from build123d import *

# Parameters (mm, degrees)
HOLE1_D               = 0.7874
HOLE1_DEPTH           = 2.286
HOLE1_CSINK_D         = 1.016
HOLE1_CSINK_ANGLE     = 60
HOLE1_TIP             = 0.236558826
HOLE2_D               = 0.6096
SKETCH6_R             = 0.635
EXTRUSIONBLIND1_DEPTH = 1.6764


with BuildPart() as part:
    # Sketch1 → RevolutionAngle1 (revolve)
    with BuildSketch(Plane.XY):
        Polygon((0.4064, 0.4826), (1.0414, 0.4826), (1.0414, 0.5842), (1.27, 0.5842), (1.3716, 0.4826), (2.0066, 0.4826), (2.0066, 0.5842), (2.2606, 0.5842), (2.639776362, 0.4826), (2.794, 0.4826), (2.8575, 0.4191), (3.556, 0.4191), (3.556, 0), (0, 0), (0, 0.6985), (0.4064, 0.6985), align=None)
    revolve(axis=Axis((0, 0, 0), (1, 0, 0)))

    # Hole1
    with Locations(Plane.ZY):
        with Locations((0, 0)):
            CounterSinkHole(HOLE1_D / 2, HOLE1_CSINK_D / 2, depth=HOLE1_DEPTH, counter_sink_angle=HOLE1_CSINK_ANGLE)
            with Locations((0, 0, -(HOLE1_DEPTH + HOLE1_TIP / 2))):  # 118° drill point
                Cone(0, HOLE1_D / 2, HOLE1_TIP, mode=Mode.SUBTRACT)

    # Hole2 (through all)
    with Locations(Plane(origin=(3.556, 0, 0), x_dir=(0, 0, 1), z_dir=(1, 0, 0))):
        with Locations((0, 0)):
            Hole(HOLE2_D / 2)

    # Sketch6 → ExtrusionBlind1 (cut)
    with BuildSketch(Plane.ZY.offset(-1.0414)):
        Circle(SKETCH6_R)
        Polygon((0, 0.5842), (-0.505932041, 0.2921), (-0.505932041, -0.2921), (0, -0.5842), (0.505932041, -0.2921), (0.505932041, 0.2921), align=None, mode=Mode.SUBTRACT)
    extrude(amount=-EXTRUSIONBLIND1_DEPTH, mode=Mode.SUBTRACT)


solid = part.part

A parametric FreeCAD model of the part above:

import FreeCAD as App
import Part
import Sketcher
from FreeCAD import Vector
Q = App.Units.Quantity


def add_polygon(sketch, points):
    """Adds a closed chain of lines whose ends are joined by coincident constraints."""
    first, n = sketch.GeometryCount, len(points)
    for a, b in zip(points, points[1:] + points[:1]):
        sketch.addGeometry(Part.LineSegment(App.Vector(*a, 0), App.Vector(*b, 0)), False)
    for i in range(n):
        sketch.addConstraint(Sketcher.Constraint("Coincident", first + i, 2, first + (i + 1) % n, 1))

doc = App.newDocument("Part")
params = doc.addObject("Spreadsheet::Sheet", "Params")
for row, (alias, value) in enumerate([
    ("sketch1_width", "0.14 in"),
    ("sketch1_width2", "0.01 in"),
    ("sketch1_width3", "0.025 in"),
    ("sketch1_width4", "0.016 in"),
    ("sketch1_width5", "0.009 in"),
    ("revolution_angle", "360 deg"),
    ("sketch2_diameter", "0.031 in"),
    ("hole_diameter", "0.031 in"),
    ("hole_depth", "0.09 in"),
    ("hole_csink_diameter", "0.04 in"),
    ("sketch3_diameter", "0.024 in"),
    ("hole2_diameter", "0.024 in"),
    ("sketch4_diameter", "0.05 in"),
    ("sketch4_width", "0.023 in"),
    ("sketch4_length", "0.023 in"),
    ("pocket1_length", "0.066 in"),
], start=1):
    params.set(f"A{row}", alias)
    params.set(f"B{row}", "=" + value)
    params.setAlias(f"B{row}", alias)

body = doc.addObject("PartDesign::Body", "Body")

sketch1 = doc.addObject("Sketcher::SketchObject", "Sketch")
body.addObject(sketch1)
sketch1.AttachmentSupport = (doc.XY_Plane, [""])
sketch1.MapMode = "FlatFace"
add_polygon(sketch1, [(1.04, 0.48), (0.41, 0.48), (0.41, 0.7), (0, 0.7), (0, 0), (3.56, 0), (3.56, 0.42), (2.86, 0.42), (2.79, 0.48), (2.64, 0.48), (2.26, 0.58), (2.01, 0.58), (2.01, 0.48), (1.37, 0.48), (1.27, 0.58), (1.04, 0.58)])
sketch1.addConstraint([
    Sketcher.Constraint("Horizontal", 0),
    Sketcher.Constraint("Vertical", 1),
    Sketcher.Constraint("Horizontal", 2),
    Sketcher.Constraint("Vertical", 3),
    Sketcher.Constraint("Horizontal", 4),
    Sketcher.Constraint("Vertical", 5),
    Sketcher.Constraint("Horizontal", 6),
    Sketcher.Constraint("Horizontal", 8),
    Sketcher.Constraint("Horizontal", 10),
    Sketcher.Constraint("Vertical", 11),
    Sketcher.Constraint("Horizontal", 12),
    Sketcher.Constraint("Horizontal", 14),
    Sketcher.Constraint("Vertical", 15),
    Sketcher.Constraint("Coincident", 3, 2, -1, 1),
    Sketcher.Constraint("Parallel", 7, 13),
    Sketcher.Constraint("Horizontal", 0, 2, 7, 2),
    Sketcher.Constraint("Horizontal", 8, 2, 11, 2),
    Sketcher.Constraint("Horizontal", 10, 2, 13, 2),
    Sketcher.Constraint("Equal", 0, 12),
    Sketcher.Constraint("Equal", 6, 3),
    Sketcher.Constraint("Angle", 7, Q("135 deg")),
    Sketcher.Constraint("Angle", 9, Q("165 deg")),
    Sketcher.Constraint("DistanceX", 4, 1, 4, 2, Q("0.14 in")),
    Sketcher.Constraint("DistanceX", 10, 2, 10, 1, Q("0.01 in")),
    Sketcher.Constraint("DistanceX", 0, 2, 0, 1, Q("0.025 in")),
    Sketcher.Constraint("DistanceX", 2, 2, 2, 1, Q("0.016 in")),
    Sketcher.Constraint("DistanceX", 14, 2, 14, 1, Q("0.009 in")),
    Sketcher.Constraint("DistanceY", 11, 2, 11, 1, Q("0.004 in")),
    Sketcher.Constraint("DistanceX", -1, 1, 7, 2, Q("0.11 in")),
    Sketcher.Constraint("DistanceX", 6, 2, 6, 1, Q("0.0275 in")),
    Sketcher.Constraint("DistanceY", 1, 1, 1, 2, Q("0.0085 in")),
])
sketch1.setExpression("Constraints[38]", "Params.sketch1_width")
sketch1.setExpression("Constraints[39]", "Params.sketch1_width2")
sketch1.setExpression("Constraints[40]", "Params.sketch1_width3")
sketch1.setExpression("Constraints[41]", "Params.sketch1_width4")
sketch1.setExpression("Constraints[42]", "Params.sketch1_width5")
revolution = doc.addObject("PartDesign::Revolution", "Revolution")
body.addObject(revolution)
revolution.Profile = sketch1
revolution.ReferenceAxis = (sketch1, ["H_Axis"])
revolution.setExpression("Angle", "Params.revolution_angle")

sketch2 = doc.addObject("Sketcher::SketchObject", "Sketch001")
body.addObject(sketch2)
sketch2.AttachmentSupport = (doc.YZ_Plane, [""])
sketch2.MapMode = "FlatFace"
sketch2.addGeometry(Part.Circle(Vector(0, 0, 0), Vector(0, 0, 1), 0.39), False)
sketch2.addConstraint([
    Sketcher.Constraint("Coincident", 0, 3, -1, 1),
    Sketcher.Constraint("Diameter", 0, Q("0.031 in")),
])
sketch2.setExpression("Constraints[1]", "Params.sketch2_diameter")
doc.recompute()
hole = doc.addObject("PartDesign::Hole", "Hole")
body.addObject(hole)
hole.Profile = sketch2
hole.ThreadType = "None"
hole.setExpression("Diameter", "Params.hole_diameter")
hole.DepthType = "Dimension"
hole.setExpression("Depth", "Params.hole_depth")
hole.DrillPoint = "Angled"
hole.DrillPointAngle = 118
hole.HoleCutType = "Countersink"
hole.setExpression("HoleCutDiameter", "Params.hole_csink_diameter")
hole.HoleCutCountersinkAngle = 60
hole.Reversed = True

sketch3 = doc.addObject("Sketcher::SketchObject", "Sketch002")
body.addObject(sketch3)
sketch3.AttachmentSupport = (doc.YZ_Plane, [""])
sketch3.MapMode = "FlatFace"
sketch3.AttachmentOffset = App.Placement(Vector(0, 0, 0.14 * 25.4), App.Rotation())
sketch3.addGeometry(Part.Circle(Vector(0, 0, 0), Vector(0, 0, 1), 0.3), False)
sketch3.addConstraint([
    Sketcher.Constraint("Coincident", 0, 3, -1, 1),
    Sketcher.Constraint("Diameter", 0, Q("0.024 in")),
])
sketch3.setExpression("Constraints[1]", "Params.sketch3_diameter")
doc.recompute()
hole2 = doc.addObject("PartDesign::Hole", "Hole001")
body.addObject(hole2)
hole2.Profile = sketch3
hole2.ThreadType = "None"
hole2.setExpression("Diameter", "Params.hole2_diameter")
hole2.DepthType = "ThroughAll"

sketch4 = doc.addObject("Sketcher::SketchObject", "Sketch003")
body.addObject(sketch4)
sketch4.AttachmentSupport = (doc.YZ_Plane, [""])
sketch4.MapMode = "FlatFace"
sketch4.AttachmentOffset = App.Placement(Vector(0, 0, 0.041 * 25.4), App.Rotation())
sketch4.addGeometry(Part.Circle(Vector(0, 0, 0), Vector(0, 0, 1), 0.6), False)
add_polygon(sketch4, [(0.3, -0.5), (0.6, 0), (0.3, 0.5), (-0.3, 0.5), (-0.6, 0), (-0.3, -0.5)])
sketch4.addConstraint([
    Sketcher.Constraint("Horizontal", 3),
    Sketcher.Constraint("Horizontal", 6),
    Sketcher.Constraint("Coincident", 0, 3, -1, 1),
    Sketcher.Constraint("Symmetric", 1, 2, 4, 2, -1, 1),
    Sketcher.Constraint("Symmetric", 2, 2, 5, 2, -1, 1),
    Sketcher.Constraint("PointOnObject", 1, 2, -1),
    Sketcher.Constraint("Parallel", 1, 4),
    Sketcher.Constraint("Vertical", 3, 2, 5, 2),
    Sketcher.Constraint("Diameter", 0, Q("0.05 in")),
    Sketcher.Constraint("Angle", 1, Q("60 deg")),
    Sketcher.Constraint("DistanceX", 3, 2, 3, 1, Q("0.023 in")),
    Sketcher.Constraint("Distance", 1, Q("0.023 in")),
])
sketch4.setExpression("Constraints[14]", "Params.sketch4_diameter")
sketch4.setExpression("Constraints[16]", "Params.sketch4_width")
sketch4.setExpression("Constraints[17]", "Params.sketch4_length")
pocket1 = doc.addObject("PartDesign::Pocket", "Pocket")
body.addObject(pocket1)
pocket1.Profile = sketch4
pocket1.setExpression("Length", "Params.pocket1_length")
pocket1.Reversed = True

doc.recompute()
